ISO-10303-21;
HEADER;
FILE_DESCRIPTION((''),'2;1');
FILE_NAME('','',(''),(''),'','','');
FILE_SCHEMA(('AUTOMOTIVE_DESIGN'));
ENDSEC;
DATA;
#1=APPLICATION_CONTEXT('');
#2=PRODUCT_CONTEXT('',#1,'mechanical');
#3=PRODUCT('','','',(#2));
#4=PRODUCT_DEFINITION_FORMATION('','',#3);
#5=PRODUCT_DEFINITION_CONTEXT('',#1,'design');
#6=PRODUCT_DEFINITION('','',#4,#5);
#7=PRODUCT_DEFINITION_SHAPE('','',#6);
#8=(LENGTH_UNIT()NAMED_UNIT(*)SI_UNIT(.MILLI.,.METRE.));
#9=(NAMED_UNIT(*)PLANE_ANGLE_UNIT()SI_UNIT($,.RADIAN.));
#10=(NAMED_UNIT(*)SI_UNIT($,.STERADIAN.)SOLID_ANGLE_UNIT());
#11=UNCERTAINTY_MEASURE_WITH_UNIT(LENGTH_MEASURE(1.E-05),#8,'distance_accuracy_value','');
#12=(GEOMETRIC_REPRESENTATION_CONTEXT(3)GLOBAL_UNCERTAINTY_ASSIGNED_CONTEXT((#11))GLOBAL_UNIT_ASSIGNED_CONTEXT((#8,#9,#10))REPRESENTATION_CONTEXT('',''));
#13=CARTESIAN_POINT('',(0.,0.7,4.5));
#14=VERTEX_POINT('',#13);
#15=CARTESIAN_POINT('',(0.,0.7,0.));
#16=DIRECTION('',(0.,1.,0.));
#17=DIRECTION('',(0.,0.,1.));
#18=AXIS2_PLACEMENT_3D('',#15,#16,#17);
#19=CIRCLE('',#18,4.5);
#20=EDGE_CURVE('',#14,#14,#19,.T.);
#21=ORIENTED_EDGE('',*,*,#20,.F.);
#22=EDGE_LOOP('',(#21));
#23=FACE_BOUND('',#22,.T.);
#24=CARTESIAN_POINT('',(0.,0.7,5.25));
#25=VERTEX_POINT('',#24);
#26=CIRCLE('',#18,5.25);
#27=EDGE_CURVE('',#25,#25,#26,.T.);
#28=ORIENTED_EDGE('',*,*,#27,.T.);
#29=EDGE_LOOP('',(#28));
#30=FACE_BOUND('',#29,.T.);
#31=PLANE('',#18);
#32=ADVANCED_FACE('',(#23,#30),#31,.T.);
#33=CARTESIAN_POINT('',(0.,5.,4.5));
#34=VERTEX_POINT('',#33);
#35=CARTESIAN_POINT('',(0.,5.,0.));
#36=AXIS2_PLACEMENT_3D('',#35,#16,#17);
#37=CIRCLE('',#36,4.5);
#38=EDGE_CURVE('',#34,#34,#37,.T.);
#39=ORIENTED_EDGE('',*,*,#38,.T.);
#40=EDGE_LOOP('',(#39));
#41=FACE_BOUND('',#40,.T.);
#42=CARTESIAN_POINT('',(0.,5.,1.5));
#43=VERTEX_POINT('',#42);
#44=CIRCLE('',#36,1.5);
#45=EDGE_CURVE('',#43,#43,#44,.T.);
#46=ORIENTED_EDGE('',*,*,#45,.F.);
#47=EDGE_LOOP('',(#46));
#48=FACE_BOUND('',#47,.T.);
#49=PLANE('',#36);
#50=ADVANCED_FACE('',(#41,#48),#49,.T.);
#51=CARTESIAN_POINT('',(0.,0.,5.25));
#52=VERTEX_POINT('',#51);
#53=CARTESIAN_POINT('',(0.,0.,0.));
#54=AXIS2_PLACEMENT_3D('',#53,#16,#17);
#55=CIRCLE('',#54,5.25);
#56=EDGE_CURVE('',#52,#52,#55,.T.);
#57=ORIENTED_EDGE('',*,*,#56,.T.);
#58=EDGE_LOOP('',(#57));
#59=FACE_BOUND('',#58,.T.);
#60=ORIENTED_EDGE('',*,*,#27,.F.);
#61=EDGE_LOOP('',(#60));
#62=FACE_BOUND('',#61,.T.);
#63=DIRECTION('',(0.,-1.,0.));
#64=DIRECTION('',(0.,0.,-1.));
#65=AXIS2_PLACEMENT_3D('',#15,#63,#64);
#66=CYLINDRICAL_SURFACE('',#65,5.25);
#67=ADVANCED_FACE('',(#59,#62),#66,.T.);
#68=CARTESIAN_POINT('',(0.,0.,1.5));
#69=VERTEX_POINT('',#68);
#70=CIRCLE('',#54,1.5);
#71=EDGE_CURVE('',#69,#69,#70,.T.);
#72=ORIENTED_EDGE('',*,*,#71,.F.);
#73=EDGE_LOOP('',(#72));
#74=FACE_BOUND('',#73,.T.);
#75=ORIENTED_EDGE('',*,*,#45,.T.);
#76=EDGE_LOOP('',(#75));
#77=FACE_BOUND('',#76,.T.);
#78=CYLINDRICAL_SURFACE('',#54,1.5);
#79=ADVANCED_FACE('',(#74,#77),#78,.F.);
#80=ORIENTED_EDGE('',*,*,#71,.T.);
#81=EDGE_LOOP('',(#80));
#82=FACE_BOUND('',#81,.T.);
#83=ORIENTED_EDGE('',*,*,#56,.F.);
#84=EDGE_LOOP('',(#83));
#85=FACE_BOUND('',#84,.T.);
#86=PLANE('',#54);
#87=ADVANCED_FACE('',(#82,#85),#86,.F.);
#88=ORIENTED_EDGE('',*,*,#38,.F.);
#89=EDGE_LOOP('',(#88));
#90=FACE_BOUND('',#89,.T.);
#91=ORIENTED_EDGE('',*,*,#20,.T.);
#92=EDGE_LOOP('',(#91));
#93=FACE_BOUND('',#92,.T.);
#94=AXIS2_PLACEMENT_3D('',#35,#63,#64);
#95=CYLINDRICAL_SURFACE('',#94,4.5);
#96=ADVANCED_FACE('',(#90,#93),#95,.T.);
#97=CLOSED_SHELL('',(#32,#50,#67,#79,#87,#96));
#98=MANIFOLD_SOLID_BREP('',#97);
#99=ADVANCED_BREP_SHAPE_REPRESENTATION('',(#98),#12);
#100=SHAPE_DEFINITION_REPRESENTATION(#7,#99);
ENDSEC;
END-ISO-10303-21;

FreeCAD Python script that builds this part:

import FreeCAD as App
import Part
import Sketcher
Q = App.Units.Quantity

doc = App.newDocument("Part")
params = doc.addObject("Spreadsheet::Sheet", "Params")
for row, (alias, value) in enumerate([
    ("sketch1_diameter", "10.5 mm"),
    ("pad1_length", "0.7 mm"),
    ("sketch2_diameter", "9 mm"),
    ("pad2_length", "4.3 mm"),
    ("sketch3_diameter", "3 mm"),
], start=1):
    params.set(f"A{row}", alias)
    params.set(f"B{row}", "=" + value)
    params.setAlias(f"B{row}", alias)

body = doc.addObject("PartDesign::Body", "Body")

# Sketch on XZ plane
sketch1 = body.newObject("Sketcher::SketchObject", "Sketch")
sketch1.AttachmentSupport = (doc.getObject("XZ_Plane"), [""])
sketch1.MapMode = "FlatFace"
sketch1.addGeometry(Part.Circle(App.Vector(0, 0, 0), App.Vector(0, 0, 1), 5), False)
sketch1.addConstraint(Sketcher.Constraint("Coincident", 0, 3, -1, 1))
sketch1.addConstraint(Sketcher.Constraint("Diameter", 0, Q("10.5 mm")))
sketch1.setExpression("Constraints[1]", "Params.sketch1_diameter")
pad1 = body.newObject("PartDesign::Pad", "Pad")
pad1.Profile = sketch1
pad1.setExpression("Length", "Params.pad1_length")
pad1.Reversed = True

# Sketch on XZ plane
sketch2 = body.newObject("Sketcher::SketchObject", "Sketch001")
sketch2.AttachmentSupport = (doc.getObject("XZ_Plane"), [""])
sketch2.MapMode = "FlatFace"
sketch2.AttachmentOffset = App.Placement(App.Vector(0, 0, -0.7), App.Rotation())
sketch2.addGeometry(Part.Circle(App.Vector(0, 0, 0), App.Vector(0, 0, 1), 4.5), False)
sketch2.addConstraint(Sketcher.Constraint("Coincident", 0, 3, -1, 1))
sketch2.addConstraint(Sketcher.Constraint("Diameter", 0, Q("9 mm")))
sketch2.setExpression("Constraints[1]", "Params.sketch2_diameter")
pad2 = body.newObject("PartDesign::Pad", "Pad001")
pad2.Profile = sketch2
pad2.setExpression("Length", "Params.pad2_length")
pad2.Reversed = True

# Sketch on XZ plane
sketch3 = body.newObject("Sketcher::SketchObject", "Sketch002")
sketch3.AttachmentSupport = (doc.getObject("XZ_Plane"), [""])
sketch3.MapMode = "FlatFace"
sketch3.AttachmentOffset = App.Placement(App.Vector(0, 0, -5), App.Rotation())
sketch3.addGeometry(Part.Circle(App.Vector(0, 0, 0), App.Vector(0, 0, 1), 1.5), False)
sketch3.addConstraint(Sketcher.Constraint("Coincident", 0, 3, -1, 1))
sketch3.addConstraint(Sketcher.Constraint("Diameter", 0, Q("3 mm")))
sketch3.setExpression("Constraints[1]", "Params.sketch3_diameter")
pocket1 = body.newObject("PartDesign::Pocket", "Pocket")
pocket1.Profile = sketch3
pocket1.Type = "ThroughAll"
pocket1.Reversed = True

doc.recompute()
